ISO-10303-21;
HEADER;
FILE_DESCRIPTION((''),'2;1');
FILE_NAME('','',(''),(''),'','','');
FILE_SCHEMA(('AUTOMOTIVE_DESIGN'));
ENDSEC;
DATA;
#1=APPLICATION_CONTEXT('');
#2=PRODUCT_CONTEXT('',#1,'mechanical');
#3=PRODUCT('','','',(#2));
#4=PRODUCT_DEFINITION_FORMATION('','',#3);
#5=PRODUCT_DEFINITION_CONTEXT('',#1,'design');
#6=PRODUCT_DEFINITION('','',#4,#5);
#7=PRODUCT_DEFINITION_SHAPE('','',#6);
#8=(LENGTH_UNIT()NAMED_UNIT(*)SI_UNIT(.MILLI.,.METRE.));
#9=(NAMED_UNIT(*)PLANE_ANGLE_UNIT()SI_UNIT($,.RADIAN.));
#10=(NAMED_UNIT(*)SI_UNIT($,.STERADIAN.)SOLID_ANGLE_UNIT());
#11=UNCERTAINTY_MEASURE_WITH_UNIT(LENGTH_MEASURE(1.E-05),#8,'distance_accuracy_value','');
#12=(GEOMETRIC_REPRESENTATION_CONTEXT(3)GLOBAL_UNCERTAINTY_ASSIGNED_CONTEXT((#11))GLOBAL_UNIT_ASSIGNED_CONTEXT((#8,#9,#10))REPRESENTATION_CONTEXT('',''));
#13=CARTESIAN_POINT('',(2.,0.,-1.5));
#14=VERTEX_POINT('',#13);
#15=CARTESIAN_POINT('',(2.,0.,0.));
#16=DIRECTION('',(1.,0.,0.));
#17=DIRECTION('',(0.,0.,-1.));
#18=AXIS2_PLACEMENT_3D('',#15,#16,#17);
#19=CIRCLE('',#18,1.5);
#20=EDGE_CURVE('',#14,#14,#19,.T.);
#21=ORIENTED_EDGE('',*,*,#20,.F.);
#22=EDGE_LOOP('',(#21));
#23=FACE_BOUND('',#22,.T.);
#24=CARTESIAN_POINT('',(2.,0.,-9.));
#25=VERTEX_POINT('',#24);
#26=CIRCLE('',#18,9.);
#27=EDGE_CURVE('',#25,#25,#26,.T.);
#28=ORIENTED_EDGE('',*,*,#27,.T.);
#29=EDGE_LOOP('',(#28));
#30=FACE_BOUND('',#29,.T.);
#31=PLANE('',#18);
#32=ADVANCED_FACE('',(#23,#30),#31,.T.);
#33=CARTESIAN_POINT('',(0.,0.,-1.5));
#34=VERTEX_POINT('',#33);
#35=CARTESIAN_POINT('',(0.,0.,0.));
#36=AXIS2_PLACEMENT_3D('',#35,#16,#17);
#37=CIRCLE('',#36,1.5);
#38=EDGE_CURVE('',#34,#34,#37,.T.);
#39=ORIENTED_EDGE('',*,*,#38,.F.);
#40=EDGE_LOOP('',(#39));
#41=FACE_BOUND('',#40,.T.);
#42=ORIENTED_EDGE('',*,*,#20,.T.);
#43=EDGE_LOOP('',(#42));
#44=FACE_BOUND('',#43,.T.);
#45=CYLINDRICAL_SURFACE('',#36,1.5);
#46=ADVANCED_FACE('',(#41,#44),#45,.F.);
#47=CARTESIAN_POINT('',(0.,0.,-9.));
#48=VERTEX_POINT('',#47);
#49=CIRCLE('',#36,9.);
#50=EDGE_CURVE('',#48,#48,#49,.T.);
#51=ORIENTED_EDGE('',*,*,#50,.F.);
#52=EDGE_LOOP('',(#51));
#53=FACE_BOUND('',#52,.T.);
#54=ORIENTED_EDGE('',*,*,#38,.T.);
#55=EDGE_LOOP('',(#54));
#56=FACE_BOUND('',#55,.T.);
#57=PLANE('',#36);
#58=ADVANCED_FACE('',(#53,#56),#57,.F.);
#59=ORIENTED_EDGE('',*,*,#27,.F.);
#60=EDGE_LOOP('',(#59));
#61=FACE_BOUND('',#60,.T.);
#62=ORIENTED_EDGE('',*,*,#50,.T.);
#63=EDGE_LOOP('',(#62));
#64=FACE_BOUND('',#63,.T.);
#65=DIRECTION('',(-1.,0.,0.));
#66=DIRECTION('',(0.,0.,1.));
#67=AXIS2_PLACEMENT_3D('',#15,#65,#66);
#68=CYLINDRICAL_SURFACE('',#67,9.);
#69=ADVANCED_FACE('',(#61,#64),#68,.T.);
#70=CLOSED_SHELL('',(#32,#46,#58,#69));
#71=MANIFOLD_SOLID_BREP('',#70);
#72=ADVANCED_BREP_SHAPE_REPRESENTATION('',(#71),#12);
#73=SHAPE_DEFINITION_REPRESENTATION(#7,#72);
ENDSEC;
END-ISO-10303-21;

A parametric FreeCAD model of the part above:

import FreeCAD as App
import Part
import Sketcher
from FreeCAD import Vector
Q = App.Units.Quantity

doc = App.newDocument("Part")
body = doc.addObject("PartDesign::Body", "Body")

sketch1 = doc.addObject("Sketcher::SketchObject", "Sketch")
body.addObject(sketch1)
sketch1.AttachmentSupport = (doc.YZ_Plane, [""])
sketch1.MapMode = "FlatFace"
sketch1.addGeometry(Part.Circle(Vector(0, 0, 0), Vector(0, 0, 1), 9), False)
sketch1.addConstraint(Sketcher.Constraint("Coincident", 0, 3, -1, 1))
sketch1.addConstraint(Sketcher.Constraint("Diameter", 0, Q("18 mm")))
pad1 = doc.addObject("PartDesign::Pad", "Pad")
body.addObject(pad1)
pad1.Profile = sketch1
pad1.Length = 2

sketch2 = doc.addObject("Sketcher::SketchObject", "Sketch001")
body.addObject(sketch2)
sketch2.AttachmentSupport = (doc.YZ_Plane, [""])
sketch2.MapMode = "FlatFace"
sketch2.AttachmentOffset = App.Placement(Vector(0, 0, 2), App.Rotation())
sketch2.addGeometry(Part.Circle(Vector(0, 0, 0), Vector(0, 0, 1), 1.5), False)
sketch2.addConstraint(Sketcher.Constraint("Coincident", 0, 3, -1, 1))
sketch2.addConstraint(Sketcher.Constraint("Diameter", 0, Q("3 mm")))
pocket1 = doc.addObject("PartDesign::Pocket", "Pocket")
body.addObject(pocket1)
pocket1.Profile = sketch2
pocket1.Type = "ThroughAll"

doc.recompute()
